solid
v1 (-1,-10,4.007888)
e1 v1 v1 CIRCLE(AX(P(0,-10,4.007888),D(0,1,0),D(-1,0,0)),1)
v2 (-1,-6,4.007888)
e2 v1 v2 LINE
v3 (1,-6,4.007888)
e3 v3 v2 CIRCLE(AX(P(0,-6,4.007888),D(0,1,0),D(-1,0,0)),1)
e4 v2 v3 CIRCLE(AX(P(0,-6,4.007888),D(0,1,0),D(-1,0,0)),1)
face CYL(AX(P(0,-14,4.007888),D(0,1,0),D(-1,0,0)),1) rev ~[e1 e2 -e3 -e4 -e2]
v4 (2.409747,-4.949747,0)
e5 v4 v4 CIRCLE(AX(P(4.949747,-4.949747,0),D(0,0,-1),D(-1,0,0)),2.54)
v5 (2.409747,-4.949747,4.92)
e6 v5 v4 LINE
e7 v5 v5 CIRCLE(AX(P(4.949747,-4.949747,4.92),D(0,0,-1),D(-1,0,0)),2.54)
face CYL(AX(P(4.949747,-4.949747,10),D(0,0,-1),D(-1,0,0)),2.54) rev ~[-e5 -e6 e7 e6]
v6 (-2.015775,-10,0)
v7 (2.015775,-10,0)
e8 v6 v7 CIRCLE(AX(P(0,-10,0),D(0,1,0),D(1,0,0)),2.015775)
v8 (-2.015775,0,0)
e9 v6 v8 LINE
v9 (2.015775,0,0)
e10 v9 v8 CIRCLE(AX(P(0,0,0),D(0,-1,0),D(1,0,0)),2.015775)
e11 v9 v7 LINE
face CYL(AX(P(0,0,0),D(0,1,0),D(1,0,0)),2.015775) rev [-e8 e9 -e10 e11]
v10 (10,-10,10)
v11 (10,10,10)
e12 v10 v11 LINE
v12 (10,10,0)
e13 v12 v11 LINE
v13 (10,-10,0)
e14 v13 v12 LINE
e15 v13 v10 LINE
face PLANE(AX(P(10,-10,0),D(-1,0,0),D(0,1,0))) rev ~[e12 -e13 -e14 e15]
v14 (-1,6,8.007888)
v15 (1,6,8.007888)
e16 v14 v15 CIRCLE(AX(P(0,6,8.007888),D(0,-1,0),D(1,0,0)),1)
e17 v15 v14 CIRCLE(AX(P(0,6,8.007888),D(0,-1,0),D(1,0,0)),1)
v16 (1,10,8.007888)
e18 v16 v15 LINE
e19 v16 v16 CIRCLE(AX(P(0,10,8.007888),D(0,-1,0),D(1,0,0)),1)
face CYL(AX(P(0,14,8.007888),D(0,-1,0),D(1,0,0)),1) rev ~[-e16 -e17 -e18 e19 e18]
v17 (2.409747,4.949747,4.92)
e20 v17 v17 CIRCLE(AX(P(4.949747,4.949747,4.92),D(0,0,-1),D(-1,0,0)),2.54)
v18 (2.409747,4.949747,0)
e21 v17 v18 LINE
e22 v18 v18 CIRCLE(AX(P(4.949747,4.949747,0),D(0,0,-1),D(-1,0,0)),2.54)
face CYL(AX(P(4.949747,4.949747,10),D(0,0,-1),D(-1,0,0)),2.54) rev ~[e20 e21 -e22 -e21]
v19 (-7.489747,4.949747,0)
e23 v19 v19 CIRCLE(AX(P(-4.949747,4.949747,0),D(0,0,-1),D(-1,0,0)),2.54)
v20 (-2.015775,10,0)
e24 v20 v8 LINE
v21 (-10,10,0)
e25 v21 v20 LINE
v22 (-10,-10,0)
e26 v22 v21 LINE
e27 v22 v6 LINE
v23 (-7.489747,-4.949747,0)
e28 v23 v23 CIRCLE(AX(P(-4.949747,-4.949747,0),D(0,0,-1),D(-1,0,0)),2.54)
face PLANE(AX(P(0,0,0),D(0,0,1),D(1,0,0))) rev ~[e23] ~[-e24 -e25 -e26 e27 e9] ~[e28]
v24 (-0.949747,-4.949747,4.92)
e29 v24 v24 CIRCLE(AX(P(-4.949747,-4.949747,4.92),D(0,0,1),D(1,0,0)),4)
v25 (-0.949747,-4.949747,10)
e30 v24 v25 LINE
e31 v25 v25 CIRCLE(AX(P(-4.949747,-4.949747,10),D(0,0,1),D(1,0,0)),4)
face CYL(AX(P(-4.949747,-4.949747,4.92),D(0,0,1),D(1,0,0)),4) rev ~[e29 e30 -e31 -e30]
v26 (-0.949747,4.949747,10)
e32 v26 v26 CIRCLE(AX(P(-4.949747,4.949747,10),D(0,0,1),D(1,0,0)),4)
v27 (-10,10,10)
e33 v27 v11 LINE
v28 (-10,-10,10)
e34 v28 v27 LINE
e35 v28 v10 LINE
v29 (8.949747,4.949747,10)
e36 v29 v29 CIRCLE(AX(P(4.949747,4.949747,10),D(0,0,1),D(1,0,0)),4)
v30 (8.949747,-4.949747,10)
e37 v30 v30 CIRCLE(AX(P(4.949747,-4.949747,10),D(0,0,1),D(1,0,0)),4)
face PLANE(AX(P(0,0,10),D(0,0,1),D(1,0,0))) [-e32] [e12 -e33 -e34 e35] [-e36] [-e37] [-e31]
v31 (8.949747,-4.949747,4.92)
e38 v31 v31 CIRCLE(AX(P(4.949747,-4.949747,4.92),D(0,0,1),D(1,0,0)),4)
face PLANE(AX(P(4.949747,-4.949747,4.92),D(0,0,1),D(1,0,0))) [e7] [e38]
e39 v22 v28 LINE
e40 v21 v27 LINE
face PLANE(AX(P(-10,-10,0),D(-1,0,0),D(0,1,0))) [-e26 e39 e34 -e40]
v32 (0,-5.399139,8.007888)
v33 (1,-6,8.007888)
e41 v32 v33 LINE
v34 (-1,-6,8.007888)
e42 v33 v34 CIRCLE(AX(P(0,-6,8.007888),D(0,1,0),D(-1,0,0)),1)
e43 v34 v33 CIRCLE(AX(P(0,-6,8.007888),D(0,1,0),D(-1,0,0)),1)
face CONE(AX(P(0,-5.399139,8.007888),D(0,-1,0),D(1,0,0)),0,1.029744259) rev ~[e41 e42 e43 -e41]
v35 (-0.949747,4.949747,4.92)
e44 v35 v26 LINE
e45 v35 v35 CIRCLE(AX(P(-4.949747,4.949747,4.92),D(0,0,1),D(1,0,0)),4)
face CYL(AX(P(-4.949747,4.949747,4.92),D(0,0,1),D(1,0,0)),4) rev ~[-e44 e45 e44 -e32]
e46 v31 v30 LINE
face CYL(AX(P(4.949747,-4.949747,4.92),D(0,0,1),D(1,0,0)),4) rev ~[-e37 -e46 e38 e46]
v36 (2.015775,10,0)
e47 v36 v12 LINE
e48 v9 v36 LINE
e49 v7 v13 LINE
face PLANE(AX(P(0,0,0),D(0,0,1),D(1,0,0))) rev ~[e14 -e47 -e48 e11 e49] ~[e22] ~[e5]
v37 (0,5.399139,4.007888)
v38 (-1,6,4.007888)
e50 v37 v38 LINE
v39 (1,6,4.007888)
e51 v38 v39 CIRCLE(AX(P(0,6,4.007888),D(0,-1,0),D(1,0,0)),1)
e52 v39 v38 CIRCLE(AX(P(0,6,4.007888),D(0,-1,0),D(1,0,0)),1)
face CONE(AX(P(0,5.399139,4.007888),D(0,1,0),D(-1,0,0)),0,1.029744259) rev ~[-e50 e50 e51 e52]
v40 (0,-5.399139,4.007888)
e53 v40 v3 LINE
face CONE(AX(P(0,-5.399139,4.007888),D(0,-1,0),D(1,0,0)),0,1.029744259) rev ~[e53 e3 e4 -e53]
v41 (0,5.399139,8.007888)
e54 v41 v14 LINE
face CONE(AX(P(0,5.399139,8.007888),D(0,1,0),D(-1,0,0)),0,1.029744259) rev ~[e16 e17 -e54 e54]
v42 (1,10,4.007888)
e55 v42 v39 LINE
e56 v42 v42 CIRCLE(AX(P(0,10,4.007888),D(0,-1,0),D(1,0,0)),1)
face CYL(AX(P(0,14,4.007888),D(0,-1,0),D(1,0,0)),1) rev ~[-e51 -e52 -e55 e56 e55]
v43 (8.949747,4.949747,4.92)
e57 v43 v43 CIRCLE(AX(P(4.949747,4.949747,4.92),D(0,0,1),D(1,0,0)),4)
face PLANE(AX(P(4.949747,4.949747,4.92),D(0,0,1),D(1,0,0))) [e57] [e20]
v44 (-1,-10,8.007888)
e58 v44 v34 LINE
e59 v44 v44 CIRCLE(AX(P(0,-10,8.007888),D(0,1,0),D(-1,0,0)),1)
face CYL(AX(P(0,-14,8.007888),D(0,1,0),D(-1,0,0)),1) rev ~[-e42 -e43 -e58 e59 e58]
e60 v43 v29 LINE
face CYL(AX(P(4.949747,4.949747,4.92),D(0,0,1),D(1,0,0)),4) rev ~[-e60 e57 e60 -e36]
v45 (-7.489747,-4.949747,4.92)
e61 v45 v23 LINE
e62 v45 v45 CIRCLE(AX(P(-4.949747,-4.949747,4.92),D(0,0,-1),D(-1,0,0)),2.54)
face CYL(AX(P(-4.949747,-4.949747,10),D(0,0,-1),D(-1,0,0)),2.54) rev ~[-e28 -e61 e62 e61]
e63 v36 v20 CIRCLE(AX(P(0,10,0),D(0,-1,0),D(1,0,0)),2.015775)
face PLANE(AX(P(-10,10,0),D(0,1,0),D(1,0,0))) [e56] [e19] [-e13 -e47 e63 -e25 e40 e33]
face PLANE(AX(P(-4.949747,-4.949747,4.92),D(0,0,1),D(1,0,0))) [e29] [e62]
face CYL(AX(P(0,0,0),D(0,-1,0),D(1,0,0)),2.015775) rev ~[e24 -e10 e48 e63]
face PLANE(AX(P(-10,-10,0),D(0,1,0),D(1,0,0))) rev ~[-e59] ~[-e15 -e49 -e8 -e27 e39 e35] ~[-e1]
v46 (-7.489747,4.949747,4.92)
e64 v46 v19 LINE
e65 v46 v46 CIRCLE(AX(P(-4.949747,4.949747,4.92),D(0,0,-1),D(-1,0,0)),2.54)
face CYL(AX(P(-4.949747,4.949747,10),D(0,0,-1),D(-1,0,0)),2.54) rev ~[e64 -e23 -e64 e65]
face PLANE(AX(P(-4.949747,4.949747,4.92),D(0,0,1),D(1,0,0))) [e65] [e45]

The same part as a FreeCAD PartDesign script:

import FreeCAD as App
import Part
import Sketcher
Q = App.Units.Quantity

doc = App.newDocument("Part")
params = doc.addObject("Spreadsheet::Sheet", "Params")
for row, (alias, value) in enumerate([
    ("sketch1_width", "20 mm"),
    ("pad1_length", "10 mm"),
    ("sketch3_diameter", "5.08 mm"),
    ("hole_diameter", "5.08 mm"),
    ("hole_cbore_diameter", "8 mm"),
    ("hole_cbore_depth", "5.08 mm"),
    ("sketch4_diameter", "2 mm"),
    ("hole2_diameter", "2 mm"),
    ("hole2_depth", "4 mm"),
    ("sketch5_diameter", "2 mm"),
    ("hole3_diameter", "2 mm"),
    ("hole3_depth", "4 mm"),
], start=1):
    params.set(f"A{row}", alias)
    params.set(f"B{row}", "=" + value)
    params.setAlias(f"B{row}", alias)

body = doc.addObject("PartDesign::Body", "Body")

# Sketch on XY plane
sketch1 = body.newObject("Sketcher::SketchObject", "Sketch")
sketch1.AttachmentSupport = (doc.getObject("XY_Plane"), [""])
sketch1.MapMode = "FlatFace"
sketch1.addGeometry([
    Part.LineSegment(App.Vector(-10, 10, 0), App.Vector(-10, -10, 0)),
    Part.LineSegment(App.Vector(-10, -10, 0), App.Vector(10, -10, 0)),
    Part.LineSegment(App.Vector(10, -10, 0), App.Vector(10, 10, 0)),
    Part.LineSegment(App.Vector(10, 10, 0), App.Vector(-10, 10, 0)),
], False)
sketch1.addConstraint([
    Sketcher.Constraint("Coincident", 0, 2, 1, 1),
    Sketcher.Constraint("Coincident", 1, 2, 2, 1),
    Sketcher.Constraint("Coincident", 2, 2, 3, 1),
    Sketcher.Constraint("Coincident", 3, 2, 0, 1),
    Sketcher.Constraint("Vertical", 0),
    Sketcher.Constraint("Horizontal", 1),
    Sketcher.Constraint("Vertical", 2),
    Sketcher.Constraint("Horizontal", 3),
    Sketcher.Constraint("Symmetric", 0, 2, 2, 2, -1, 1),
    Sketcher.Constraint("Equal", 3, 0),
    Sketcher.Constraint("DistanceX", 1, 1, 1, 2, Q("20 mm")),
])
sketch1.setExpression("Constraints[10]", "Params.sketch1_width")
pad1 = body.newObject("PartDesign::Pad", "Pad")
pad1.Profile = sketch1
pad1.setExpression("Length", "Params.pad1_length")

# Sketch on XZ plane
sketch2 = body.newObject("Sketcher::SketchObject", "Sketch001")
sketch2.AttachmentSupport = (doc.getObject("XZ_Plane"), [""])
sketch2.MapMode = "FlatFace"
sketch2.addGeometry(Part.Circle(App.Vector(0, 0, 0), App.Vector(0, 0, 1), 2), False)
sketch2.addConstraint([
    Sketcher.Constraint("Coincident", 0, 3, -1, 1),
    Sketcher.Constraint("Diameter", 0, Q("4.031551 mm")),
])
pocket1 = body.newObject("PartDesign::Pocket", "Pocket")
pocket1.Profile = sketch2
pocket1.Type = "ThroughAll"
pocket1.Midplane = True

# Sketch on XY plane
sketch3 = body.newObject("Sketcher::SketchObject", "Sketch002")
sketch3.AttachmentSupport = (doc.getObject("XY_Plane"), [""])
sketch3.MapMode = "FlatFace"
sketch3.AttachmentOffset = App.Placement(App.Vector(0, 0, 10), App.Rotation())
sketch3.addGeometry([
    Part.Circle(App.Vector(-4.9, 4.9, 0), App.Vector(0, 0, 1), 2.5),
    Part.Circle(App.Vector(-4.9, -4.9, 0), App.Vector(0, 0, 1), 2.5),
    Part.Circle(App.Vector(4.9, -4.9, 0), App.Vector(0, 0, 1), 2.5),
    Part.Circle(App.Vector(4.9, 4.9, 0), App.Vector(0, 0, 1), 2.5),
], False)
sketch3.addConstraint([
    Sketcher.Constraint("Equal", 0, 1),
    Sketcher.Constraint("Equal", 1, 2),
    Sketcher.Constraint("Equal", 2, 3),
    Sketcher.Constraint("Symmetric", 0, 3, 2, 3, -1, 1),
    Sketcher.Constraint("Symmetric", 1, 3, 3, 3, -1, 1),
    Sketcher.Constraint("Symmetric", 1, 3, 2, 3, -2),
    Sketcher.Constraint("Diameter", 0, Q("5.08 mm")),
    Sketcher.Constraint("DistanceX", 0, 3, -1, 1, Q("4.949747 mm")),
    Sketcher.Constraint("DistanceY", -1, 1, 0, 3, Q("4.949747 mm")),
])
sketch3.setExpression("Constraints[6]", "Params.sketch3_diameter")
doc.recompute()
hole = body.newObject("PartDesign::Hole", "Hole")
hole.Profile = sketch3
hole.ThreadType = "None"
hole.setExpression("Diameter", "Params.hole_diameter")
hole.DepthType = "ThroughAll"
hole.HoleCutType = "Counterbore"
hole.setExpression("HoleCutDiameter", "Params.hole_cbore_diameter")
hole.setExpression("HoleCutDepth", "Params.hole_cbore_depth")

# Sketch on XZ plane
sketch4 = body.newObject("Sketcher::SketchObject", "Sketch003")
sketch4.AttachmentSupport = (doc.getObject("XZ_Plane"), [""])
sketch4.MapMode = "FlatFace"
sketch4.AttachmentOffset = App.Placement(App.Vector(0, 0, 10), App.Rotation())
sketch4.addGeometry([
    Part.Circle(App.Vector(0, 8, 0), App.Vector(0, 0, 1), 1),
    Part.Circle(App.Vector(0, 4, 0), App.Vector(0, 0, 1), 1),
], False)
sketch4.addConstraint([
    Sketcher.Constraint("Equal", 0, 1),
    Sketcher.Constraint("PointOnObject", 0, 3, -2),
    Sketcher.Constraint("PointOnObject", 1, 3, -2),
    Sketcher.Constraint("Diameter", 0, Q("2 mm")),
    Sketcher.Constraint("DistanceY", 1, 3, 0, 3, Q("4 mm")),
    Sketcher.Constraint("DistanceY", -1, 1, 0, 3, Q("8.007888 mm")),
])
sketch4.setExpression("Constraints[3]", "Params.sketch4_diameter")
doc.recompute()
hole2 = body.newObject("PartDesign::Hole", "Hole001")
hole2.Profile = sketch4
hole2.ThreadType = "None"
hole2.setExpression("Diameter", "Params.hole2_diameter")
hole2.DepthType = "Dimension"
hole2.setExpression("Depth", "Params.hole2_depth")
hole2.DrillPoint = "Angled"
hole2.DrillPointAngle = 118

# Sketch on XZ plane
sketch5 = body.newObject("Sketcher::SketchObject", "Sketch004")
sketch5.AttachmentSupport = (doc.getObject("XZ_Plane"), [""])
sketch5.MapMode = "FlatFace"
sketch5.AttachmentOffset = App.Placement(App.Vector(0, 0, -10), App.Rotation())
sketch5.addGeometry([
    Part.Circle(App.Vector(0, 4, 0), App.Vector(0, 0, 1), 1),
    Part.Circle(App.Vector(0, 8, 0), App.Vector(0, 0, 1), 1),
], False)
sketch5.addConstraint([
    Sketcher.Constraint("Equal", 0, 1),
    Sketcher.Constraint("PointOnObject", 0, 3, -2),
    Sketcher.Constraint("PointOnObject", 1, 3, -2),
    Sketcher.Constraint("Diameter", 0, Q("2 mm")),
    Sketcher.Constraint("DistanceY", 0, 3, 1, 3, Q("4 mm")),
    Sketcher.Constraint("DistanceY", -1, 1, 0, 3, Q("4.007888 mm")),
])
sketch5.setExpression("Constraints[3]", "Params.sketch5_diameter")
doc.recompute()
hole3 = body.newObject("PartDesign::Hole", "Hole002")
hole3.Profile = sketch5
hole3.ThreadType = "None"
hole3.setExpression("Diameter", "Params.hole3_diameter")
hole3.DepthType = "Dimension"
hole3.setExpression("Depth", "Params.hole3_depth")
hole3.DrillPoint = "Angled"
hole3.DrillPointAngle = 118
hole3.Reversed = True

doc.recompute()
